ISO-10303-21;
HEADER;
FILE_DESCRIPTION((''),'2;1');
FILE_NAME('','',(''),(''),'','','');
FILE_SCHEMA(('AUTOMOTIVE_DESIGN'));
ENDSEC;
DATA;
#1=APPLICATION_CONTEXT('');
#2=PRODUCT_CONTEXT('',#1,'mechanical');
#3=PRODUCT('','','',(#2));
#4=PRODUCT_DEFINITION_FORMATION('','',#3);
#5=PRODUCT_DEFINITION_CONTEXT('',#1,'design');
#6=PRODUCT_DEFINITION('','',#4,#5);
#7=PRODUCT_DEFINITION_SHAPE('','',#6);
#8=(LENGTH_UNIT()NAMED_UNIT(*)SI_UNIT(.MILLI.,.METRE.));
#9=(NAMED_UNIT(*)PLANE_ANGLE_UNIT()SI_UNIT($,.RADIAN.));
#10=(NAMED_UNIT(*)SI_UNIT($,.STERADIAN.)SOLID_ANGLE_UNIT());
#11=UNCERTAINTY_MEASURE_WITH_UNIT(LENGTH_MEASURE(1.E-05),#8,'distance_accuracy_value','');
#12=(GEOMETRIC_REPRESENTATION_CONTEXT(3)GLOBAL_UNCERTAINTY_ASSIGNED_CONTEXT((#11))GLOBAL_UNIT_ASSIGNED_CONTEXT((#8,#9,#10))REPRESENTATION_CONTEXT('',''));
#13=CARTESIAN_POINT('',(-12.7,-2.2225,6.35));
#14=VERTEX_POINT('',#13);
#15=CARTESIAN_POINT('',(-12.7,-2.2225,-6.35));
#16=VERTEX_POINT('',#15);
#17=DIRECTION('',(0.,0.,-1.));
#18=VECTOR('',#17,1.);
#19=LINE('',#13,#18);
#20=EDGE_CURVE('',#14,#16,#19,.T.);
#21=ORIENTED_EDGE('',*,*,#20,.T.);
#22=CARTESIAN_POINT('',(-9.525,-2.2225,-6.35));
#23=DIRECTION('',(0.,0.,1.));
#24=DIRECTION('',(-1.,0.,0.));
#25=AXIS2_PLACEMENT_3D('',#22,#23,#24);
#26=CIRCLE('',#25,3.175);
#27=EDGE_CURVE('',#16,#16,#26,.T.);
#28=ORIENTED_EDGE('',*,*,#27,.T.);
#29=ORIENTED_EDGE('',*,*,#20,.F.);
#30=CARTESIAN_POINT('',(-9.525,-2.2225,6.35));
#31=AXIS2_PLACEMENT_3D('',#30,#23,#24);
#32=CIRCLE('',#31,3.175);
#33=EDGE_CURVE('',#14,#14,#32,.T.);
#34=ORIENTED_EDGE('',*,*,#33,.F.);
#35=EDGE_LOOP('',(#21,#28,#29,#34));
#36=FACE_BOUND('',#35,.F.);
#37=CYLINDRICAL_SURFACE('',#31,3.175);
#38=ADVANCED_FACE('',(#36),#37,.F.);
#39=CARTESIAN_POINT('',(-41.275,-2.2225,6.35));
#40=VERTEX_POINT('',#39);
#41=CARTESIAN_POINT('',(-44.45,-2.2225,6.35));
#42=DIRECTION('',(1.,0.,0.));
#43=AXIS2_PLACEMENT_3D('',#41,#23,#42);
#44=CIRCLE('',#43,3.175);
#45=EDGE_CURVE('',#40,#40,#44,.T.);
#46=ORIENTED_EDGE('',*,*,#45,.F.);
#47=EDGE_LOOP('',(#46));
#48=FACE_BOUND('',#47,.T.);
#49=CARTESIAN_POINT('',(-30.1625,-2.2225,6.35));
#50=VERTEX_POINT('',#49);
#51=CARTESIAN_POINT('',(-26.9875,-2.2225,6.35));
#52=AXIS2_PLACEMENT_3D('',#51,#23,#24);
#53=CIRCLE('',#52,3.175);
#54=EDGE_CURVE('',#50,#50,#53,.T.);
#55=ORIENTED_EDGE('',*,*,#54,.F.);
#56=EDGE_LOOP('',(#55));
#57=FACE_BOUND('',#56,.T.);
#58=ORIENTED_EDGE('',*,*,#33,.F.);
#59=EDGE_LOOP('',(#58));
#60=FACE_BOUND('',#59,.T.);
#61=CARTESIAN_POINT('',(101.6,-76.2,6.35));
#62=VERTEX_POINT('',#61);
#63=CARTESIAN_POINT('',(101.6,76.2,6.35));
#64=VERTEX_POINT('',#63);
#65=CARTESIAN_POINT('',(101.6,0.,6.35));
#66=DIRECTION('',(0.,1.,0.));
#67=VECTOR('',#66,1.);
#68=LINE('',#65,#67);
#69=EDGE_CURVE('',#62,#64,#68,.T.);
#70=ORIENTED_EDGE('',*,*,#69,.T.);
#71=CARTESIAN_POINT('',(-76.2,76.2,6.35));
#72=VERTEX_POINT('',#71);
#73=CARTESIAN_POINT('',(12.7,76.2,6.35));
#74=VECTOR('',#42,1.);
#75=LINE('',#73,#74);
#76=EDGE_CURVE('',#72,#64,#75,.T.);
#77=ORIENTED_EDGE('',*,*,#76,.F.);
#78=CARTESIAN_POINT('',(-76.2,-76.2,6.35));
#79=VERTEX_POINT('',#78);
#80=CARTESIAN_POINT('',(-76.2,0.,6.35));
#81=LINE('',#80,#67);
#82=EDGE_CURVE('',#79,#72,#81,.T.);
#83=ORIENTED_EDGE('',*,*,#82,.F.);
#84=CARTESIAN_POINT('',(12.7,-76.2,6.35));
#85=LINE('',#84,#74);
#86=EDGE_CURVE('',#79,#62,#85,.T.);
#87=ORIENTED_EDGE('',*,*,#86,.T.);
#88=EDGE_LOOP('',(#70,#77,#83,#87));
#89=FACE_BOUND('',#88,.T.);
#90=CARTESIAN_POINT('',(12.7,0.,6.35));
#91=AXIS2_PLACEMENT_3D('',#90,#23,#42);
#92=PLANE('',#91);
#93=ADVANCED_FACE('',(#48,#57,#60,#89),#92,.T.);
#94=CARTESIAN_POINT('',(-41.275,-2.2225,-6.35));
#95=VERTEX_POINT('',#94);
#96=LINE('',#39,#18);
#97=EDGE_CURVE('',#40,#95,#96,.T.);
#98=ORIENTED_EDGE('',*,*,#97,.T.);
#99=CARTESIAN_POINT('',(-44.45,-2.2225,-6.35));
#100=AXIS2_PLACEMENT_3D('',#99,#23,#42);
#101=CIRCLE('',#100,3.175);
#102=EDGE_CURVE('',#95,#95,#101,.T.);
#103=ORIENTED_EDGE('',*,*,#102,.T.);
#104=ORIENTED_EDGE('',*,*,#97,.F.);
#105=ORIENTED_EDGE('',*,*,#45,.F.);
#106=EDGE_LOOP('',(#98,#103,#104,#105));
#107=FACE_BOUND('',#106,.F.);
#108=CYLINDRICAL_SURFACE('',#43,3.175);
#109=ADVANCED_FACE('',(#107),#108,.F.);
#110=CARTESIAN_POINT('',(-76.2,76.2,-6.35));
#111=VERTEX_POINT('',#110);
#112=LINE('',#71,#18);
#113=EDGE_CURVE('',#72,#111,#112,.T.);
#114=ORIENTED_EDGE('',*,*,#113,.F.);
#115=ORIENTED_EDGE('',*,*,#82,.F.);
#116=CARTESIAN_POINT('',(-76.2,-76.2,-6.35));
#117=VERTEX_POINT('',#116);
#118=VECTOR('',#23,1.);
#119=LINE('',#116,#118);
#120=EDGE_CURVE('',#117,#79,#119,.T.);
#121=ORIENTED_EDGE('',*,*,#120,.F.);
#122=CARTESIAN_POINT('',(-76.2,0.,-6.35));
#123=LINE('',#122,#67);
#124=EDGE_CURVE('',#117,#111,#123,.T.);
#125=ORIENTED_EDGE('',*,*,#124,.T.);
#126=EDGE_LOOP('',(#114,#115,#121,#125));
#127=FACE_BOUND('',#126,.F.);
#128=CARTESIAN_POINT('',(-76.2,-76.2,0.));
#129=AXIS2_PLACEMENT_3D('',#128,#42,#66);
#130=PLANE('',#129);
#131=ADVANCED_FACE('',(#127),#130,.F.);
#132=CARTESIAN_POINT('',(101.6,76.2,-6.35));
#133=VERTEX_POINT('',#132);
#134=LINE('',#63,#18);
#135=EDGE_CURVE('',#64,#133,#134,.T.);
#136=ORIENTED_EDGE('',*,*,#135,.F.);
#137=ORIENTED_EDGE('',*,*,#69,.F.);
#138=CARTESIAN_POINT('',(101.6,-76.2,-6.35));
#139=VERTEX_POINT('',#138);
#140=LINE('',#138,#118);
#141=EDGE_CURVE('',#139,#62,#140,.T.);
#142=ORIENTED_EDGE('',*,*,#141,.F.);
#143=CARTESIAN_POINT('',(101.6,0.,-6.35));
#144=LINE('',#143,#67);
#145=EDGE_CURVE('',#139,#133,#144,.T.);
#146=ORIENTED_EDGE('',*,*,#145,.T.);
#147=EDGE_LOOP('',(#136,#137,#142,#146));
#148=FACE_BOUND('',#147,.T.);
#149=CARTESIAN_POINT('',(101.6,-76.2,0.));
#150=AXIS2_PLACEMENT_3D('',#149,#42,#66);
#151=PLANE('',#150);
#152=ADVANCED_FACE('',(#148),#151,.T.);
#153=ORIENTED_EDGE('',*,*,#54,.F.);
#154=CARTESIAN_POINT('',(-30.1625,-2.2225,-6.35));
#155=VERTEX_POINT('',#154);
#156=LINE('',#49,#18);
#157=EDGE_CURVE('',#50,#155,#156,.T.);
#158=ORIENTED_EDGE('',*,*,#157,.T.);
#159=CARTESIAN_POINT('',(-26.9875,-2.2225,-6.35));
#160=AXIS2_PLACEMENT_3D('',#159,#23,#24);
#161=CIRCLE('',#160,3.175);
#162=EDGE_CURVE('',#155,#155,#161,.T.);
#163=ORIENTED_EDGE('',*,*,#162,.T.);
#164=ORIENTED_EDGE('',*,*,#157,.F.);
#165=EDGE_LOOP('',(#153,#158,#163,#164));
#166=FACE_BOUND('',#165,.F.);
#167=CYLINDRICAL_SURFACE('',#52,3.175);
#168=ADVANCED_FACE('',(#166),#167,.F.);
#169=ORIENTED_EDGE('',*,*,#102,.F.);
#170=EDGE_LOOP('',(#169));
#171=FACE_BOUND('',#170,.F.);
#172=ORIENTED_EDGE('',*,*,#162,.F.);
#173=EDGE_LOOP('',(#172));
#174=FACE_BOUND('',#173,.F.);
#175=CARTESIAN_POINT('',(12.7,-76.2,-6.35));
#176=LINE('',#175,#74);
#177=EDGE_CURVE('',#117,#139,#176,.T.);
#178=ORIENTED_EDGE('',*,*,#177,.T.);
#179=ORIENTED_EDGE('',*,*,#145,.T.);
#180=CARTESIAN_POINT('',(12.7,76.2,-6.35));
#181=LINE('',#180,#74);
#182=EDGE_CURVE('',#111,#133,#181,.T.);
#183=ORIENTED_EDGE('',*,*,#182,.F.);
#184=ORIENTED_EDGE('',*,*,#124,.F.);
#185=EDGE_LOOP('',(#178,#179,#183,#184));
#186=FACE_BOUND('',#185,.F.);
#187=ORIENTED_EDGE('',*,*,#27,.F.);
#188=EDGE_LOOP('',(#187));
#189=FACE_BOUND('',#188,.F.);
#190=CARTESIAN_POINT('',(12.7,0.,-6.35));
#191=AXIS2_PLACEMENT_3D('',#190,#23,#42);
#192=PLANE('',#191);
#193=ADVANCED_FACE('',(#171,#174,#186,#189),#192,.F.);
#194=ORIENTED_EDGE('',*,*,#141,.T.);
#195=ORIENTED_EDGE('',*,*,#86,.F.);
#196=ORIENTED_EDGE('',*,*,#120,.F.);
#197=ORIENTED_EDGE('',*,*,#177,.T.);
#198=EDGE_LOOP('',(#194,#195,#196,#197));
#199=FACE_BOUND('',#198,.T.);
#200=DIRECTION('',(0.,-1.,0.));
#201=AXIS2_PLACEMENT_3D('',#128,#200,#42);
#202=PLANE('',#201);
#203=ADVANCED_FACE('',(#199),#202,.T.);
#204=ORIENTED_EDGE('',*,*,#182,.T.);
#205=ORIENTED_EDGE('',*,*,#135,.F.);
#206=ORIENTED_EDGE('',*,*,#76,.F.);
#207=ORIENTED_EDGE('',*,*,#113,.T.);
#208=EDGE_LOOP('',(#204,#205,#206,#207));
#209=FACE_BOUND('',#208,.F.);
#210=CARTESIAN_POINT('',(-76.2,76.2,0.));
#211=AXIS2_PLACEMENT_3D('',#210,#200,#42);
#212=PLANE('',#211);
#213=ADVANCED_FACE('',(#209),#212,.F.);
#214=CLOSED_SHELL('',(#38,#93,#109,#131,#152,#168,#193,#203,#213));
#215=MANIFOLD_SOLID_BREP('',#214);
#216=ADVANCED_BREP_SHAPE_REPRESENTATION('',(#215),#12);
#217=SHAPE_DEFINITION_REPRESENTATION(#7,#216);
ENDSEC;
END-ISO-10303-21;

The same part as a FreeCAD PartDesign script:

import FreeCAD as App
import Part
import Sketcher

V = App.Vector
Q = App.Units.Quantity


def add_polygon(sketch, points):
    """Adds a closed chain of lines whose ends are joined by coincident constraints."""
    first, n = sketch.GeometryCount, len(points)
    for a, b in zip(points, points[1:] + points[:1]):
        sketch.addGeometry(Part.LineSegment(App.Vector(*a, 0), App.Vector(*b, 0)), False)
    for i in range(n):
        sketch.addConstraint(Sketcher.Constraint("Coincident", first + i, 2, first + (i + 1) % n, 1))

doc = App.newDocument("Part")
params = doc.addObject("Spreadsheet::Sheet", "Params")
for row, (alias, value) in enumerate([
    ("sketch1_width", "7 in"),
    ("sketch1_height", "6 in"),
    ("pad1_length", "0.25 in"),
    ("pad1_length2", "0.25 in"),
    ("sketch2_diameter", "0.25 in"),
], start=1):
    params.set(f"A{row}", alias)
    params.set(f"B{row}", "=" + value)
    params.setAlias(f"B{row}", alias)

body = doc.addObject("PartDesign::Body", "Body")

sketch1 = body.newObject("Sketcher::SketchObject", "Sketch")
sketch1.AttachmentSupport = (doc.getObject("XY_Plane"), [""])
sketch1.MapMode = "FlatFace"
add_polygon(sketch1, [(-76, 76), (-76, -76), (102, -76), (102, 76)])
sketch1.addConstraint([
    Sketcher.Constraint("Vertical", 0),
    Sketcher.Constraint("Horizontal", 1),
    Sketcher.Constraint("Vertical", 2),
    Sketcher.Constraint("Horizontal", 3),
    Sketcher.Constraint("DistanceX", 1, 1, 1, 2, Q("7 in")),
    Sketcher.Constraint("DistanceY", 0, 2, 0, 1, Q("6 in")),
    Sketcher.Constraint("DistanceX", 0, 2, -1, 1, Q("3 in")),
    Sketcher.Constraint("DistanceY", 0, 2, -1, 1, Q("3 in")),
])
sketch1.setExpression("Constraints[8]", "Params.sketch1_width")
sketch1.setExpression("Constraints[9]", "Params.sketch1_height")
pad1 = body.newObject("PartDesign::Pad", "Pad")
pad1.Profile = sketch1
pad1.Type = "TwoLengths"
pad1.setExpression("Length", "Params.pad1_length")
pad1.setExpression("Length2", "Params.pad1_length2")

sketch2 = body.newObject("Sketcher::SketchObject", "Sketch001")
sketch2.AttachmentSupport = (doc.getObject("XY_Plane"), [""])
sketch2.MapMode = "FlatFace"
sketch2.AttachmentOffset = App.Placement(V(0, 0, 0.25 * 25.4), App.Rotation())
sketch2.addGeometry([
    Part.Circle(V(-44.5, -2.2, 0), V(0, 0, 1), 3.2),
    Part.Circle(V(-9.5, -2.2, 0), V(0, 0, 1), 3.2),
    Part.Circle(V(-27, -2.2, 0), V(0, 0, 1), 3.2),
], False)
sketch2.addConstraint([
    Sketcher.Constraint("Equal", 0, 1),
    Sketcher.Constraint("Equal", 1, 2),
    Sketcher.Constraint("Horizontal", 0, 3, 1, 3),
    Sketcher.Constraint("Horizontal", 1, 3, 2, 3),
    Sketcher.Constraint("Diameter", 0, Q("0.25 in")),
    Sketcher.Constraint("DistanceX", 0, 3, -1, 1, Q("1.75 in")),
    Sketcher.Constraint("DistanceX", 1, 3, -1, 1, Q("0.375 in")),
    Sketcher.Constraint("DistanceX", 2, 3, -1, 1, Q("1.0625 in")),
    Sketcher.Constraint("DistanceY", 0, 3, -1, 1, Q("0.0875 in")),
])
sketch2.setExpression("Constraints[4]", "Params.sketch2_diameter")
pocket1 = body.newObject("PartDesign::Pocket", "Pocket")
pocket1.Profile = sketch2
pocket1.Type = "ThroughAll"

doc.recompute()
